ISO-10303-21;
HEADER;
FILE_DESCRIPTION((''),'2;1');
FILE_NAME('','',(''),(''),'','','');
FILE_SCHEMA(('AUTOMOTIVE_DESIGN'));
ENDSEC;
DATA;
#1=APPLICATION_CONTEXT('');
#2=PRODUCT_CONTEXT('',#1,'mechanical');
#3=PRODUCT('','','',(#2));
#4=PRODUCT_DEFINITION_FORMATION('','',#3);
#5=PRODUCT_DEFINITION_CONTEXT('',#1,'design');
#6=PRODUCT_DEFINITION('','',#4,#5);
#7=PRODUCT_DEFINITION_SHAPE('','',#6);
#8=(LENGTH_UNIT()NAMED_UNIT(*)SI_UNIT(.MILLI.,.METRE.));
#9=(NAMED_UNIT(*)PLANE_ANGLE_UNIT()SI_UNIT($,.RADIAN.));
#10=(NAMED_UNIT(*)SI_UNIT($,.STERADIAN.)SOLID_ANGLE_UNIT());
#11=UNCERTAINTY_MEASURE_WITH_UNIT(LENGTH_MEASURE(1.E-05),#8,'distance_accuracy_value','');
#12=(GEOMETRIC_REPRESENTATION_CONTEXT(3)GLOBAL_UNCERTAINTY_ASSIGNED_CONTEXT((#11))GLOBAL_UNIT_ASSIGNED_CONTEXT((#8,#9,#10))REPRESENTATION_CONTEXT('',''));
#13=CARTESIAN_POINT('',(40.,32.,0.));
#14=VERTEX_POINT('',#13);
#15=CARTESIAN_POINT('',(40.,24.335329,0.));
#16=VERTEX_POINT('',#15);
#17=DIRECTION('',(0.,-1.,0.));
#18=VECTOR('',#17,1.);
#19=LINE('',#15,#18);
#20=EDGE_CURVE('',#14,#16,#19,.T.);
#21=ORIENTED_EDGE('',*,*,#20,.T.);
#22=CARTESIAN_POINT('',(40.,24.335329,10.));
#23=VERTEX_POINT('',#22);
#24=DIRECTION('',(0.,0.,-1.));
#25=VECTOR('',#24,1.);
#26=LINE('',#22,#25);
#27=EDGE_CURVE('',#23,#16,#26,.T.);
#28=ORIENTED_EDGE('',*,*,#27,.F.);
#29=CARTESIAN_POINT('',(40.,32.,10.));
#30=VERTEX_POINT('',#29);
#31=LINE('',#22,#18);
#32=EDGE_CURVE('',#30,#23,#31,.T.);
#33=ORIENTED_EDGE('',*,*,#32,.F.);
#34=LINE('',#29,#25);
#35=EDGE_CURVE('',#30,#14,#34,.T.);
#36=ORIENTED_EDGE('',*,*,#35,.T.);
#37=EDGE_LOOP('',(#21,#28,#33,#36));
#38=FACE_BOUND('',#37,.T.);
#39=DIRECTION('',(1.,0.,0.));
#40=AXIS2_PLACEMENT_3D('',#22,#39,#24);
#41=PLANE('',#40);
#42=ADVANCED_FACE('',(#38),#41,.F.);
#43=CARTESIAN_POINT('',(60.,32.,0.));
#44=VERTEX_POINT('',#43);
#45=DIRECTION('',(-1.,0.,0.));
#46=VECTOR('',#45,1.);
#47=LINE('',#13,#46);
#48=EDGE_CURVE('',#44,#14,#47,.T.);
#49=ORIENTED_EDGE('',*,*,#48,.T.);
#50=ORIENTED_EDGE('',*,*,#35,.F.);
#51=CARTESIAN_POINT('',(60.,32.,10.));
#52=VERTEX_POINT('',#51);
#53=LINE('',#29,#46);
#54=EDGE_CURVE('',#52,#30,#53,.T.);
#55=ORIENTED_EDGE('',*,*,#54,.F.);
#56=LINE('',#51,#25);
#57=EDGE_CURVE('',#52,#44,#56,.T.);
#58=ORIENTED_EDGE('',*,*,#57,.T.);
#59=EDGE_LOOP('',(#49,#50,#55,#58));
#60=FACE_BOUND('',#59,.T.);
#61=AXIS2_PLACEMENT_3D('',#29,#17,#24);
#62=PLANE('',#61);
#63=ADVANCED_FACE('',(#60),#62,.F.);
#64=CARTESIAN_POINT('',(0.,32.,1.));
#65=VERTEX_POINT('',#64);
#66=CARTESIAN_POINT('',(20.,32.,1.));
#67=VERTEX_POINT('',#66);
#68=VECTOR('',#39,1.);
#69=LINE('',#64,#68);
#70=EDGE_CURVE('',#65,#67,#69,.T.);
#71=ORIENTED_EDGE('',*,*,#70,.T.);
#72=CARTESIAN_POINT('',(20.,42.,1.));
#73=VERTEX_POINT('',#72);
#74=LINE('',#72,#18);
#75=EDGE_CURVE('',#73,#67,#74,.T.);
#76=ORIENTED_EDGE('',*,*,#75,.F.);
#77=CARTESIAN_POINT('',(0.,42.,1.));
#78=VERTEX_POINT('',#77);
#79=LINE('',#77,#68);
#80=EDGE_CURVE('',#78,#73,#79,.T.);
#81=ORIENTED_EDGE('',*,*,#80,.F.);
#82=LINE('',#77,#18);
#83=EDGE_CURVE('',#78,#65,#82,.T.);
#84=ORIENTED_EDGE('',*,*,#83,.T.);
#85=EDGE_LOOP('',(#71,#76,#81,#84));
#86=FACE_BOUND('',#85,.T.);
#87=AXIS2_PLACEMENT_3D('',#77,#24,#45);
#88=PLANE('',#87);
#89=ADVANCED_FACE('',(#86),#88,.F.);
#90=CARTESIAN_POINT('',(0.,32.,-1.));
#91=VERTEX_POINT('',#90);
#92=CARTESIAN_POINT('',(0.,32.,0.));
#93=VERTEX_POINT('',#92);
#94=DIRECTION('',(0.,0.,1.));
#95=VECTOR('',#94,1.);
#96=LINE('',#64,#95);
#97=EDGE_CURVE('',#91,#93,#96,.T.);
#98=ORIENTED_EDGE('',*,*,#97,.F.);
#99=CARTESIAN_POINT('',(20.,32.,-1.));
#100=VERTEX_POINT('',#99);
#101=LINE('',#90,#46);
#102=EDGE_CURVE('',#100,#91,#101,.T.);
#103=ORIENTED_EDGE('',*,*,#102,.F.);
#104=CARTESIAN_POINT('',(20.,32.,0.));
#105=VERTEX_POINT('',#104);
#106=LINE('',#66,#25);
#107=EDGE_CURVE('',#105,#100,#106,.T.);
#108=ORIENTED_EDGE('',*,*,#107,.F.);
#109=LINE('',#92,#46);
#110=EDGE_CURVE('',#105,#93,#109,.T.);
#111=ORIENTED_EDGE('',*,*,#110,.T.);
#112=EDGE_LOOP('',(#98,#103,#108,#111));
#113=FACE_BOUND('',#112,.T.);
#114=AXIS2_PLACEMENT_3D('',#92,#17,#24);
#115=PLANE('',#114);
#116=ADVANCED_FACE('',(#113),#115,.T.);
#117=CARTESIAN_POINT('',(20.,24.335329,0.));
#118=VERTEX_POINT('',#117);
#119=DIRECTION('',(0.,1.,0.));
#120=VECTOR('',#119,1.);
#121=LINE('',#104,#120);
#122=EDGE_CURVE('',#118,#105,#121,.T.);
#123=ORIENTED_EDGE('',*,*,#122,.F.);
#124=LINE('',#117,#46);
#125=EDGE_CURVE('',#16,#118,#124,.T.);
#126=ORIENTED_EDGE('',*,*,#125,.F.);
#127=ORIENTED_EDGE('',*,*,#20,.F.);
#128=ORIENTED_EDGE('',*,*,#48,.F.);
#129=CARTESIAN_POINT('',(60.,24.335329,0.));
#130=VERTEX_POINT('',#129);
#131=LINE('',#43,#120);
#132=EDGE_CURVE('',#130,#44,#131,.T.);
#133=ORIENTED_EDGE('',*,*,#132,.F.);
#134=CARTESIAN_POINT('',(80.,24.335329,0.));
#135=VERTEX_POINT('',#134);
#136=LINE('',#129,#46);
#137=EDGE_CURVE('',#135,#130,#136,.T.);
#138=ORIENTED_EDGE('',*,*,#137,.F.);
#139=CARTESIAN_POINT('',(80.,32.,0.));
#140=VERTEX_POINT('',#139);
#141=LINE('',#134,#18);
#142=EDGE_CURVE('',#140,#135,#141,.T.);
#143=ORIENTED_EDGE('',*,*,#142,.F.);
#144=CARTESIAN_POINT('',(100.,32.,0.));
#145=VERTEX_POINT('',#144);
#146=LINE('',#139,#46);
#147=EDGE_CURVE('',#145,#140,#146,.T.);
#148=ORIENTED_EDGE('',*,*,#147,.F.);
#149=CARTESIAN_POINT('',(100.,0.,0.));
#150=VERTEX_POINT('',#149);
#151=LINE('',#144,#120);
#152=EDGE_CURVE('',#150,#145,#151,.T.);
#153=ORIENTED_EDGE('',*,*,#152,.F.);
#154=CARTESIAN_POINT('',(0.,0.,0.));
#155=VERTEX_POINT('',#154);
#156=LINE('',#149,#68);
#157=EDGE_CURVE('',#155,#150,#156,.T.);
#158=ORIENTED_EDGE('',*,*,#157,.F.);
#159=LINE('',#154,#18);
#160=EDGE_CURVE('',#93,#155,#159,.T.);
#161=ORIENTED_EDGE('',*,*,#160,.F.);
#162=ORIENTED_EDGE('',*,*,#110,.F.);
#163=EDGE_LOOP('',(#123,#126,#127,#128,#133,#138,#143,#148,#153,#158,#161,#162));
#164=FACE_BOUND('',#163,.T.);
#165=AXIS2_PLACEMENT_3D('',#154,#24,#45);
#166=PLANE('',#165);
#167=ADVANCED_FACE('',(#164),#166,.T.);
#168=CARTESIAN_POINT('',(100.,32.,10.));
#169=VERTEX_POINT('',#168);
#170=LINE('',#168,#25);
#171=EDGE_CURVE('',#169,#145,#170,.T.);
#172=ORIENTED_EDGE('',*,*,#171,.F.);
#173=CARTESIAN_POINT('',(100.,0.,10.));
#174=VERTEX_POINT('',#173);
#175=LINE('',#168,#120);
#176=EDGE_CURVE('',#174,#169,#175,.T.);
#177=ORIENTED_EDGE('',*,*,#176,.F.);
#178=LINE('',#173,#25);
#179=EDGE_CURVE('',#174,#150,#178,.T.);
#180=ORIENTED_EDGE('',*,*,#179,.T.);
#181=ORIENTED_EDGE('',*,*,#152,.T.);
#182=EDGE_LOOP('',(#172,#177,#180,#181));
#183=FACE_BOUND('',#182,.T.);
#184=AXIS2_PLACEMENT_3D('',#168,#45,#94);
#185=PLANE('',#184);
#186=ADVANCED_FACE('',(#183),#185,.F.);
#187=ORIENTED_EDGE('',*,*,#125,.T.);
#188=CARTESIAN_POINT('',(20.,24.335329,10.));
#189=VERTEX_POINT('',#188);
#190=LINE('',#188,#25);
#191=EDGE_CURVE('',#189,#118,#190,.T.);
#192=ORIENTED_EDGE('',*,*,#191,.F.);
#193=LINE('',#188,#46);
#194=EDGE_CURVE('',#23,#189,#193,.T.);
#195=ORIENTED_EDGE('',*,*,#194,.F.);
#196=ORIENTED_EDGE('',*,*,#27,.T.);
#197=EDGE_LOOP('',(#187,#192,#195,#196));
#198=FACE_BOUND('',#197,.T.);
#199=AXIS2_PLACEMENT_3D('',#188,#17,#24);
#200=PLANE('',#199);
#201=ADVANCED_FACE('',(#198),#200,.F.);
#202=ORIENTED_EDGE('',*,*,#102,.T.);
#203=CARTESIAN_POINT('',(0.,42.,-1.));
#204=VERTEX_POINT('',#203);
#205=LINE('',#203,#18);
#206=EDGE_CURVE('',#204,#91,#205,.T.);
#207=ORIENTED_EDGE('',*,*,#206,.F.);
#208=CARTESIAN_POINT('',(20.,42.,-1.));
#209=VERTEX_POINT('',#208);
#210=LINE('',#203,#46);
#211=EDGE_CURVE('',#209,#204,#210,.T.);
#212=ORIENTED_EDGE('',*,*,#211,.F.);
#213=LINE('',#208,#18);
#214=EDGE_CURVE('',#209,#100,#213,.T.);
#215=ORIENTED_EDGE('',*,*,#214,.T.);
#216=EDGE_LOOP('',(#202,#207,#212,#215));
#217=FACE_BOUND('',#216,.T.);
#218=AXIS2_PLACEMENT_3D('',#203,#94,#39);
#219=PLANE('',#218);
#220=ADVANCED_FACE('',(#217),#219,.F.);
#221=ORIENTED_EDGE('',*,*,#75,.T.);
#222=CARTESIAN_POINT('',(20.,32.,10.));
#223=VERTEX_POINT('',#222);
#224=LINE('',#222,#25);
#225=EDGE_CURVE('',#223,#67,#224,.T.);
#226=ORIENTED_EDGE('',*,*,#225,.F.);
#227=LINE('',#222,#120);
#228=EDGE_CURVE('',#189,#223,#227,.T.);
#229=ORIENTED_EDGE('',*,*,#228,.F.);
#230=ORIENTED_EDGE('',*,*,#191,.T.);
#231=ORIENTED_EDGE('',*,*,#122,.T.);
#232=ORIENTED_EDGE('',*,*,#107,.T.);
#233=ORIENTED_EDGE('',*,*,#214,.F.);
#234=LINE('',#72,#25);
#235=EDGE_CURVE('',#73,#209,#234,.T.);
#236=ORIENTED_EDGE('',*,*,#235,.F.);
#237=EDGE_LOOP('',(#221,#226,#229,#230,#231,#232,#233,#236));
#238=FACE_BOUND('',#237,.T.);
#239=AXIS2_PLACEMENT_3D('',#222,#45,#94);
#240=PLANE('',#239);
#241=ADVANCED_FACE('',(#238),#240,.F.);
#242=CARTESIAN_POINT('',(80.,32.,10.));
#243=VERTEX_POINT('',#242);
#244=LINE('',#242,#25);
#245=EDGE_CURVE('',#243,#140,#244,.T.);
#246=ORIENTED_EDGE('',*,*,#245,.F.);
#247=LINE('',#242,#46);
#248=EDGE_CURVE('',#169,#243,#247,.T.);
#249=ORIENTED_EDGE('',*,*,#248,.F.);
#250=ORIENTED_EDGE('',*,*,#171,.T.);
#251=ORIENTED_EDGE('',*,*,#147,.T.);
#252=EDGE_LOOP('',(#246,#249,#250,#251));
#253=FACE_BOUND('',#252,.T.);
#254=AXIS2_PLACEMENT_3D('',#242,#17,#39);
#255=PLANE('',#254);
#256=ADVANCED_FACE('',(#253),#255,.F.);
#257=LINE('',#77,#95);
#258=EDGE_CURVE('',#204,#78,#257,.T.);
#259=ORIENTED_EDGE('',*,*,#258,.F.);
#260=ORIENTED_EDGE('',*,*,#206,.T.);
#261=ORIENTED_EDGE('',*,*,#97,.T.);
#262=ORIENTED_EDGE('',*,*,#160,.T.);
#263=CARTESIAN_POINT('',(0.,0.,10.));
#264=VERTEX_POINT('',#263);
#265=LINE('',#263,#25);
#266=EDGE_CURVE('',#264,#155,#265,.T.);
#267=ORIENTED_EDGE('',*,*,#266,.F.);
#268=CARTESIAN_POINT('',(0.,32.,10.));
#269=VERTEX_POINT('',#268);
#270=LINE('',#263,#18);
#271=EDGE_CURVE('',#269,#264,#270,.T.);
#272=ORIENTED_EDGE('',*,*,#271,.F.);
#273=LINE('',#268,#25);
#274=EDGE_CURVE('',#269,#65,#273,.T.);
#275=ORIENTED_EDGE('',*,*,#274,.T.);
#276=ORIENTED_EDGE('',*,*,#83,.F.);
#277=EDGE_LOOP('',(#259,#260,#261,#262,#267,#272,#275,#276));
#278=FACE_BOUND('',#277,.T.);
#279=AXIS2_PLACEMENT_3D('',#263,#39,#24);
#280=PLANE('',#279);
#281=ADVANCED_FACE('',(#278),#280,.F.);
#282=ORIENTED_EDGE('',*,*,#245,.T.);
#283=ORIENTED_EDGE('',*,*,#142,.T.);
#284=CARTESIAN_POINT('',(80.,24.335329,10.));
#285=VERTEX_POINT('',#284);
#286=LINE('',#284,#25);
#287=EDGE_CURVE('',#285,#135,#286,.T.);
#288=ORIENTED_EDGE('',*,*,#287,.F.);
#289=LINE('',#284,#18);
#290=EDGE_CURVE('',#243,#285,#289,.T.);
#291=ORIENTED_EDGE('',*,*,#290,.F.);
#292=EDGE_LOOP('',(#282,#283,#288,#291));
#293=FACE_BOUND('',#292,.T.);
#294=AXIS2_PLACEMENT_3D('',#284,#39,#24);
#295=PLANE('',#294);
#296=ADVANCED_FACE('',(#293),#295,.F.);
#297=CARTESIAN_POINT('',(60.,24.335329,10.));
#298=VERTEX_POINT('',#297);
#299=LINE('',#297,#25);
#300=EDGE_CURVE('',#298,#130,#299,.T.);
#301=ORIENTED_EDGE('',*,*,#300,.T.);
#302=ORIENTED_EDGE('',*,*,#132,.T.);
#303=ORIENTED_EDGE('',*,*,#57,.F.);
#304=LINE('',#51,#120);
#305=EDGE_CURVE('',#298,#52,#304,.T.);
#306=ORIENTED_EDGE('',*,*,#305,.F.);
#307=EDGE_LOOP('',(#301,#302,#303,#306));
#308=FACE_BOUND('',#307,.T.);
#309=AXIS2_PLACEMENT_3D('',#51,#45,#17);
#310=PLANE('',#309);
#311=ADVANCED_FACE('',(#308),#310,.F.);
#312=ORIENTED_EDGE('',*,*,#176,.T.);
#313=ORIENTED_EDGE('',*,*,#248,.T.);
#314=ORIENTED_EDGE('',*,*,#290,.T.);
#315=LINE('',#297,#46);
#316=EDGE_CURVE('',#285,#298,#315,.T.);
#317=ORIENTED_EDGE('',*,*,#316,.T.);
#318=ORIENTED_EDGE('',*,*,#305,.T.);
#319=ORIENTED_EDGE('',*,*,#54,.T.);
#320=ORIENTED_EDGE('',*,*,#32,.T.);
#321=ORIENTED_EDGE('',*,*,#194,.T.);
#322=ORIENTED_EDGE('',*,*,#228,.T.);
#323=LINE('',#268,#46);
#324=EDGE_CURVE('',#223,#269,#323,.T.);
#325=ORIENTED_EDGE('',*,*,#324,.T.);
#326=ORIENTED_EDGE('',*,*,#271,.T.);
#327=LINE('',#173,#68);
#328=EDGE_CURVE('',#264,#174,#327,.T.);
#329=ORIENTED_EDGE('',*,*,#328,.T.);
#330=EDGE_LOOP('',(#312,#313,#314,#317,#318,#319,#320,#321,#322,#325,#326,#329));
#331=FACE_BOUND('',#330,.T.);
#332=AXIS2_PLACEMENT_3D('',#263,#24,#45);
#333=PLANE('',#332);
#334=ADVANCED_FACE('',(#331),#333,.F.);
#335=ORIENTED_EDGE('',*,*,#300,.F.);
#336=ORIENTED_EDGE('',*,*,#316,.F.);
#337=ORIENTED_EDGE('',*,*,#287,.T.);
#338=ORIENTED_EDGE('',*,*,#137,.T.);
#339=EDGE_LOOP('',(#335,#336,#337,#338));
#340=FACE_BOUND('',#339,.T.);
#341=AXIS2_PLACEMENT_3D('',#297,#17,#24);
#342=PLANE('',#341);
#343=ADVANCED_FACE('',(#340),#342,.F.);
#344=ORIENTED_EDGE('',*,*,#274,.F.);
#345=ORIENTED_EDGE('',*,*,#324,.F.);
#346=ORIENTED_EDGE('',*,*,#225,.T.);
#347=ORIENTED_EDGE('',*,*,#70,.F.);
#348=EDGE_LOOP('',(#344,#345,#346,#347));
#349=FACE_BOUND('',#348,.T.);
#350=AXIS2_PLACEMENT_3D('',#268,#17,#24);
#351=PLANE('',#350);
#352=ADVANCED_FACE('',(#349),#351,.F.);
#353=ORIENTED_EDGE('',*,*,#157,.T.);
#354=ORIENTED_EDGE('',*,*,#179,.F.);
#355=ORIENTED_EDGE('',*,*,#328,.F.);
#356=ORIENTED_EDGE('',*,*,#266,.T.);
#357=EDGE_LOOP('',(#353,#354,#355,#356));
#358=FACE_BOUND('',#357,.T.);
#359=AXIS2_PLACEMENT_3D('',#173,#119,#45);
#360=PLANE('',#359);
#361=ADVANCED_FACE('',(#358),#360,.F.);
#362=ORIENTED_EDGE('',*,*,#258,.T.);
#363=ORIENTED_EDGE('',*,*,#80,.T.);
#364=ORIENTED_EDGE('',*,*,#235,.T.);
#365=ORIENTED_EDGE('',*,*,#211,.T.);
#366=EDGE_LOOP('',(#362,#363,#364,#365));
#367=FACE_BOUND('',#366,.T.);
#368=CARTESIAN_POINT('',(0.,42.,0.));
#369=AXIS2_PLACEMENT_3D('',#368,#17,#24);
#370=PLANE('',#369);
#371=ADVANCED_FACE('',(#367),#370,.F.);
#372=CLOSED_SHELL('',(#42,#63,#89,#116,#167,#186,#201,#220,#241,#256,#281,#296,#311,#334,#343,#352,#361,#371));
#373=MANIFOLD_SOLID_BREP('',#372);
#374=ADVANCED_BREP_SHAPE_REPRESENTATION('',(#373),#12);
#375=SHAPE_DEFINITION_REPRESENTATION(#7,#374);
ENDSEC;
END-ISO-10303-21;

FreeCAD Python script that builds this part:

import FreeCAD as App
import Part
import Sketcher

V = App.Vector
Q = App.Units.Quantity

doc = App.newDocument("Part")
params = doc.addObject("Spreadsheet::Sheet", "Params")
for row, (alias, value) in enumerate([
    ("sketch1_width", "100 mm"),
    ("sketch1_height", "32 mm"),
    ("pad1_length", "10 mm"),
    ("sketch2_width", "20 mm"),
    ("sketch2_height", "2 mm"),
    ("pad2_length", "10 mm"),
], start=1):
    params.set(f"A{row}", alias)
    params.set(f"B{row}", "=" + value)
    params.setAlias(f"B{row}", alias)

body = doc.addObject("PartDesign::Body", "Body")

# Sketch on XY plane
sketch1 = doc.addObject("Sketcher::SketchObject", "Sketch")
body.addObject(sketch1)
sketch1.AttachmentSupport = (doc.XY_Plane, [""])
sketch1.MapMode = "FlatFace"
sketch1.addGeometry([
    Part.LineSegment(V(0, 32, 0), V(0, 0, 0)),  # 0
    Part.LineSegment(V(0, 0, 0), V(100, 0, 0)),  # 1
    Part.LineSegment(V(100, 0, 0), V(100, 32, 0)),  # 2
    Part.LineSegment(V(100, 32, 0), V(80, 32, 0)),  # 3
    Part.LineSegment(V(80, 32, 0), V(80, 24, 0)),  # 4
    Part.LineSegment(V(80, 24, 0), V(60, 24, 0)),  # 5
    Part.LineSegment(V(60, 24, 0), V(60, 32, 0)),  # 6
    Part.LineSegment(V(60, 32, 0), V(40, 32, 0)),  # 7
    Part.LineSegment(V(40, 32, 0), V(40, 24, 0)),  # 8
    Part.LineSegment(V(40, 24, 0), V(20, 24, 0)),  # 9
    Part.LineSegment(V(20, 24, 0), V(20, 32, 0)),  # 10
    Part.LineSegment(V(20, 32, 0), V(0, 32, 0)),  # 11
], False)
sketch1.addConstraint([
    Sketcher.Constraint("Coincident", 0, 2, 1, 1),
    Sketcher.Constraint("Coincident", 1, 2, 2, 1),
    Sketcher.Constraint("Coincident", 2, 2, 3, 1),
    Sketcher.Constraint("Coincident", 3, 2, 4, 1),
    Sketcher.Constraint("Coincident", 4, 2, 5, 1),
    Sketcher.Constraint("Coincident", 5, 2, 6, 1),
    Sketcher.Constraint("Coincident", 6, 2, 7, 1),
    Sketcher.Constraint("Coincident", 7, 2, 8, 1),
    Sketcher.Constraint("Coincident", 8, 2, 9, 1),
    Sketcher.Constraint("Coincident", 9, 2, 10, 1),
    Sketcher.Constraint("Coincident", 10, 2, 11, 1),
    Sketcher.Constraint("Coincident", 11, 2, 0, 1),
    Sketcher.Constraint("Vertical", 0),
    Sketcher.Constraint("Horizontal", 1),
    Sketcher.Constraint("Vertical", 2),
    Sketcher.Constraint("Horizontal", 3),
    Sketcher.Constraint("Vertical", 4),
    Sketcher.Constraint("Horizontal", 5),
    Sketcher.Constraint("Vertical", 6),
    Sketcher.Constraint("Horizontal", 7),
    Sketcher.Constraint("Vertical", 8),
    Sketcher.Constraint("Horizontal", 9),
    Sketcher.Constraint("Vertical", 10),
    Sketcher.Constraint("Horizontal", 11),
    Sketcher.Constraint("Coincident", 0, 2, -1, 1),
    Sketcher.Constraint("Horizontal", 3, 2, 6, 2),
    Sketcher.Constraint("Horizontal", 5, 2, 8, 2),
    Sketcher.Constraint("Horizontal", 7, 2, 10, 2),
    Sketcher.Constraint("Equal", 3, 5),
    Sketcher.Constraint("Equal", 5, 7),
    Sketcher.Constraint("Equal", 7, 9),
    Sketcher.Constraint("Equal", 9, 11),
    Sketcher.Constraint("DistanceX", 1, 1, 1, 2, Q("100 mm")),
    Sketcher.Constraint("DistanceY", 0, 2, 0, 1, Q("32 mm")),
    Sketcher.Constraint("DistanceY", 4, 2, 4, 1, Q("7.664671 mm")),
])
sketch1.setExpression("Constraints[32]", "Params.sketch1_width")
sketch1.setExpression("Constraints[33]", "Params.sketch1_height")
pad1 = doc.addObject("PartDesign::Pad", "Pad")
body.addObject(pad1)
pad1.Profile = sketch1
pad1.setExpression("Length", "Params.pad1_length")

# Sketch on XZ plane
sketch2 = doc.addObject("Sketcher::SketchObject", "Sketch001")
body.addObject(sketch2)
sketch2.AttachmentSupport = (doc.XZ_Plane, [""])
sketch2.MapMode = "FlatFace"
sketch2.AttachmentOffset = App.Placement(V(0, 0, -32), App.Rotation())
sketch2.addGeometry([
    Part.LineSegment(V(0, -1, 0), V(0, 1, 0)),
    Part.LineSegment(V(0, 1, 0), V(20, 1, 0)),
    Part.LineSegment(V(20, 1, 0), V(20, -1, 0)),
    Part.LineSegment(V(20, -1, 0), V(0, -1, 0)),
], False)
sketch2.addConstraint([
    Sketcher.Constraint("Coincident", 0, 2, 1, 1),
    Sketcher.Constraint("Coincident", 1, 2, 2, 1),
    Sketcher.Constraint("Coincident", 2, 2, 3, 1),
    Sketcher.Constraint("Coincident", 3, 2, 0, 1),
    Sketcher.Constraint("Vertical", 0),
    Sketcher.Constraint("Horizontal", 1),
    Sketcher.Constraint("Vertical", 2),
    Sketcher.Constraint("Horizontal", 3),
    Sketcher.Constraint("Symmetric", 0, 2, 3, 2, -1, 1),
    Sketcher.Constraint("DistanceX", 1, 1, 1, 2, Q("20 mm")),
    Sketcher.Constraint("DistanceY", 0, 1, 0, 2, Q("2 mm")),
])
sketch2.setExpression("Constraints[9]", "Params.sketch2_width")
sketch2.setExpression("Constraints[10]", "Params.sketch2_height")
pad2 = doc.addObject("PartDesign::Pad", "Pad001")
body.addObject(pad2)
pad2.Profile = sketch2
pad2.setExpression("Length", "Params.pad2_length")
pad2.Reversed = True

doc.recompute()
